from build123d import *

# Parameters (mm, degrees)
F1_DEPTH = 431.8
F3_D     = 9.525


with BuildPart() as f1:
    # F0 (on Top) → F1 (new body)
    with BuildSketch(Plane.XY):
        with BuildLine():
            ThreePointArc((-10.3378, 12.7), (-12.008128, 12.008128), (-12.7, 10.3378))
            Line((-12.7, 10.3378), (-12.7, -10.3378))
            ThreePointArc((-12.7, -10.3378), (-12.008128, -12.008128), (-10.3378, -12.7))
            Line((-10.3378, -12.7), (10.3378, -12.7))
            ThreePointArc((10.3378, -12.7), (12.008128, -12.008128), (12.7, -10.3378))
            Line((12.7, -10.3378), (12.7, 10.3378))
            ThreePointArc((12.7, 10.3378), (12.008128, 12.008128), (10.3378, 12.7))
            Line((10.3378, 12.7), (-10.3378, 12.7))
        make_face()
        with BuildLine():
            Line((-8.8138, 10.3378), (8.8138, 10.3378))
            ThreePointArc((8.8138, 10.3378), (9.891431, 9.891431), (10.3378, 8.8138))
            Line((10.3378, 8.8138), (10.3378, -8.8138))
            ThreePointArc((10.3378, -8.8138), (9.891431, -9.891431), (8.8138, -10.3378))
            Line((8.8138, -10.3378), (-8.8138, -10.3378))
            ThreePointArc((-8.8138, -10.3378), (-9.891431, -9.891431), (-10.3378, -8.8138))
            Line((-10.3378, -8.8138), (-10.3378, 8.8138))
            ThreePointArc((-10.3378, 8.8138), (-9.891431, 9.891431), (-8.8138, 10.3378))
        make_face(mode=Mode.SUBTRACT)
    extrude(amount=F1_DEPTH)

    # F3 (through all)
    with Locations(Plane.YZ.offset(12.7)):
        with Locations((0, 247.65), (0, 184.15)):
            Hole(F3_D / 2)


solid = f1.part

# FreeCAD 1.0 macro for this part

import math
import FreeCAD as App
import Part
import Sketcher

V = App.Vector
Q = App.Units.Quantity

doc = App.newDocument("Part")
params = doc.addObject("Spreadsheet::Sheet", "Params")
for row, (alias, value) in enumerate([
    ("sketch1_radius", "0.06 in"),
    ("sketch1_radius2", "0.093 in"),
    ("pad1_length", "17 in"),
    ("sketch2_diameter", "0.375 in"),
    ("hole_diameter", "0.375 in"),
], start=1):
    params.set(f"A{row}", alias)
    params.set(f"B{row}", "=" + value)
    params.setAlias(f"B{row}", alias)

body = doc.addObject("PartDesign::Body", "Body")

# Sketch on XY plane
sketch1 = doc.addObject("Sketcher::SketchObject", "Sketch")
body.addObject(sketch1)
sketch1.AttachmentSupport = (doc.XY_Plane, [""])
sketch1.MapMode = "FlatFace"
sketch1.addGeometry([
    Part.ArcOfCircle(Part.Circle(V(-10.337801, 10.337801, 0), V(0, 0, 1), 2.362199), math.radians(89.99997), math.radians(180.00003)),  # 0
    Part.LineSegment(V(-12.7, 10.3378, 0), V(-12.7, -10.3378, 0)),  # 1
    Part.ArcOfCircle(Part.Circle(V(-10.337801, -10.337801, 0), V(0, 0, 1), 2.362199), math.radians(179.99997), math.radians(270.00003)),  # 2
    Part.LineSegment(V(-10.3378, -12.7, 0), V(10.3378, -12.7, 0)),  # 3
    Part.ArcOfCircle(Part.Circle(V(10.337801, -10.337801, 0), V(0, 0, 1), 2.362199), math.radians(-90.00003), math.radians(0.00003)),  # 4
    Part.LineSegment(V(12.7, -10.3378, 0), V(12.7, 10.3378, 0)),  # 5
    Part.ArcOfCircle(Part.Circle(V(10.337801, 10.337801, 0), V(0, 0, 1), 2.362199), math.radians(-0.00003), math.radians(90.00003)),  # 6
    Part.LineSegment(V(10.3378, 12.7, 0), V(-10.3378, 12.7, 0)),  # 7
    Part.ArcOfCircle(Part.Circle(V(-8.813801, 8.813801, 0), V(0, 0, 1), 1.523999), math.radians(89.999966), math.radians(180.000034)),  # 8
    Part.LineSegment(V(-8.8138, 10.3378, 0), V(8.8138, 10.3378, 0)),  # 9
    Part.ArcOfCircle(Part.Circle(V(8.813801, 8.813801, 0), V(0, 0, 1), 1.523999), math.radians(-0.000034), math.radians(90.000034)),  # 10
    Part.LineSegment(V(10.3378, 8.8138, 0), V(10.3378, -8.8138, 0)),  # 11
    Part.ArcOfCircle(Part.Circle(V(8.813801, -8.813801, 0), V(0, 0, 1), 1.523999), math.radians(-90.000034), math.radians(0.000034)),  # 12
    Part.LineSegment(V(8.8138, -10.3378, 0), V(-8.8138, -10.3378, 0)),  # 13
    Part.ArcOfCircle(Part.Circle(V(-8.813801, -8.813801, 0), V(0, 0, 1), 1.523999), math.radians(179.999966), math.radians(270.000034)),  # 14
    Part.LineSegment(V(-10.3378, -8.8138, 0), V(-10.3378, 8.8138, 0)),  # 15
], False)
sketch1.addConstraint([
    Sketcher.Constraint("Tangent", 0, 2, 1, 1),
    Sketcher.Constraint("Tangent", 1, 2, 2, 1),
    Sketcher.Constraint("Tangent", 2, 2, 3, 1),
    Sketcher.Constraint("Tangent", 3, 2, 4, 1),
    Sketcher.Constraint("Tangent", 4, 2, 5, 1),
    Sketcher.Constraint("Tangent", 5, 2, 6, 1),
    Sketcher.Constraint("Tangent", 6, 2, 7, 1),
    Sketcher.Constraint("Tangent", 7, 2, 0, 1),
    Sketcher.Constraint("Tangent", 8, 1, 9, 1),
    Sketcher.Constraint("Tangent", 9, 2, 10, 2),
    Sketcher.Constraint("Tangent", 10, 1, 11, 1),
    Sketcher.Constraint("Tangent", 11, 2, 12, 2),
    Sketcher.Constraint("Tangent", 12, 1, 13, 1),
    Sketcher.Constraint("Tangent", 13, 2, 14, 2),
    Sketcher.Constraint("Tangent", 14, 1, 15, 1),
    Sketcher.Constraint("Tangent", 15, 2, 8, 2),
    Sketcher.Constraint("Vertical", 1),
    Sketcher.Constraint("Horizontal", 3),
    Sketcher.Constraint("Vertical", 5),
    Sketcher.Constraint("Horizontal", 7),
    Sketcher.Constraint("Horizontal", 9),
    Sketcher.Constraint("Vertical", 11),
    Sketcher.Constraint("Horizontal", 13),
    Sketcher.Constraint("Vertical", 15),
    Sketcher.Constraint("Equal", 0, 2),
    Sketcher.Constraint("Equal", 2, 4),
    Sketcher.Constraint("Equal", 4, 6),
    Sketcher.Constraint("Equal", 8, 10),
    Sketcher.Constraint("Equal", 10, 12),
    Sketcher.Constraint("Equal", 12, 14),
    Sketcher.Constraint("Symmetric", 0, 3, 4, 3, -1, 1),
    Sketcher.Constraint("Symmetric", 8, 3, 12, 3, -1, 1),
    Sketcher.Constraint("Horizontal", 5, 2, 8, 1),
    Sketcher.Constraint("Vertical", 6, 2, 10, 1),
    Sketcher.Constraint("Equal", 7, 1),
    Sketcher.Constraint("Radius", 8, Q("0.06 in")),
    Sketcher.Constraint("Radius", 0, Q("0.093 in")),
    Sketcher.Constraint("DistanceX", 0, 2, -1, 1, Q("0.5 in")),
])
sketch1.setExpression("Constraints[35]", "Params.sketch1_radius")
sketch1.setExpression("Constraints[36]", "Params.sketch1_radius2")
pad1 = doc.addObject("PartDesign::Pad", "Pad")
body.addObject(pad1)
pad1.Profile = sketch1
pad1.setExpression("Length", "Params.pad1_length")

# Sketch on YZ plane
sketch2 = doc.addObject("Sketcher::SketchObject", "Sketch001")
body.addObject(sketch2)
sketch2.AttachmentSupport = (doc.YZ_Plane, [""])
sketch2.MapMode = "FlatFace"
sketch2.AttachmentOffset = App.Placement(V(0, 0, 0.5 * 25.4), App.Rotation())
sketch2.addGeometry([
    Part.Circle(V(0, 247.65, 0), V(0, 0, 1), 4.7625),
    Part.Circle(V(0, 184.15, 0), V(0, 0, 1), 4.7625),
], False)
sketch2.addConstraint([
    Sketcher.Constraint("Equal", 0, 1),
    Sketcher.Constraint("PointOnObject", 0, 3, -2),
    Sketcher.Constraint("PointOnObject", 1, 3, -2),
    Sketcher.Constraint("Diameter", 0, Q("0.375 in")),
    Sketcher.Constraint("DistanceY", 1, 3, 0, 3, Q("2.5 in")),
    Sketcher.Constraint("DistanceY", -1, 1, 0, 3, Q("9.75 in")),
])
sketch2.setExpression("Constraints[3]", "Params.sketch2_diameter")
doc.recompute()
hole = doc.addObject("PartDesign::Hole", "Hole")
body.addObject(hole)
hole.Profile = sketch2
hole.ThreadType = "None"
hole.setExpression("Diameter", "Params.hole_diameter")
hole.DepthType = "ThroughAll"

doc.recompute()
